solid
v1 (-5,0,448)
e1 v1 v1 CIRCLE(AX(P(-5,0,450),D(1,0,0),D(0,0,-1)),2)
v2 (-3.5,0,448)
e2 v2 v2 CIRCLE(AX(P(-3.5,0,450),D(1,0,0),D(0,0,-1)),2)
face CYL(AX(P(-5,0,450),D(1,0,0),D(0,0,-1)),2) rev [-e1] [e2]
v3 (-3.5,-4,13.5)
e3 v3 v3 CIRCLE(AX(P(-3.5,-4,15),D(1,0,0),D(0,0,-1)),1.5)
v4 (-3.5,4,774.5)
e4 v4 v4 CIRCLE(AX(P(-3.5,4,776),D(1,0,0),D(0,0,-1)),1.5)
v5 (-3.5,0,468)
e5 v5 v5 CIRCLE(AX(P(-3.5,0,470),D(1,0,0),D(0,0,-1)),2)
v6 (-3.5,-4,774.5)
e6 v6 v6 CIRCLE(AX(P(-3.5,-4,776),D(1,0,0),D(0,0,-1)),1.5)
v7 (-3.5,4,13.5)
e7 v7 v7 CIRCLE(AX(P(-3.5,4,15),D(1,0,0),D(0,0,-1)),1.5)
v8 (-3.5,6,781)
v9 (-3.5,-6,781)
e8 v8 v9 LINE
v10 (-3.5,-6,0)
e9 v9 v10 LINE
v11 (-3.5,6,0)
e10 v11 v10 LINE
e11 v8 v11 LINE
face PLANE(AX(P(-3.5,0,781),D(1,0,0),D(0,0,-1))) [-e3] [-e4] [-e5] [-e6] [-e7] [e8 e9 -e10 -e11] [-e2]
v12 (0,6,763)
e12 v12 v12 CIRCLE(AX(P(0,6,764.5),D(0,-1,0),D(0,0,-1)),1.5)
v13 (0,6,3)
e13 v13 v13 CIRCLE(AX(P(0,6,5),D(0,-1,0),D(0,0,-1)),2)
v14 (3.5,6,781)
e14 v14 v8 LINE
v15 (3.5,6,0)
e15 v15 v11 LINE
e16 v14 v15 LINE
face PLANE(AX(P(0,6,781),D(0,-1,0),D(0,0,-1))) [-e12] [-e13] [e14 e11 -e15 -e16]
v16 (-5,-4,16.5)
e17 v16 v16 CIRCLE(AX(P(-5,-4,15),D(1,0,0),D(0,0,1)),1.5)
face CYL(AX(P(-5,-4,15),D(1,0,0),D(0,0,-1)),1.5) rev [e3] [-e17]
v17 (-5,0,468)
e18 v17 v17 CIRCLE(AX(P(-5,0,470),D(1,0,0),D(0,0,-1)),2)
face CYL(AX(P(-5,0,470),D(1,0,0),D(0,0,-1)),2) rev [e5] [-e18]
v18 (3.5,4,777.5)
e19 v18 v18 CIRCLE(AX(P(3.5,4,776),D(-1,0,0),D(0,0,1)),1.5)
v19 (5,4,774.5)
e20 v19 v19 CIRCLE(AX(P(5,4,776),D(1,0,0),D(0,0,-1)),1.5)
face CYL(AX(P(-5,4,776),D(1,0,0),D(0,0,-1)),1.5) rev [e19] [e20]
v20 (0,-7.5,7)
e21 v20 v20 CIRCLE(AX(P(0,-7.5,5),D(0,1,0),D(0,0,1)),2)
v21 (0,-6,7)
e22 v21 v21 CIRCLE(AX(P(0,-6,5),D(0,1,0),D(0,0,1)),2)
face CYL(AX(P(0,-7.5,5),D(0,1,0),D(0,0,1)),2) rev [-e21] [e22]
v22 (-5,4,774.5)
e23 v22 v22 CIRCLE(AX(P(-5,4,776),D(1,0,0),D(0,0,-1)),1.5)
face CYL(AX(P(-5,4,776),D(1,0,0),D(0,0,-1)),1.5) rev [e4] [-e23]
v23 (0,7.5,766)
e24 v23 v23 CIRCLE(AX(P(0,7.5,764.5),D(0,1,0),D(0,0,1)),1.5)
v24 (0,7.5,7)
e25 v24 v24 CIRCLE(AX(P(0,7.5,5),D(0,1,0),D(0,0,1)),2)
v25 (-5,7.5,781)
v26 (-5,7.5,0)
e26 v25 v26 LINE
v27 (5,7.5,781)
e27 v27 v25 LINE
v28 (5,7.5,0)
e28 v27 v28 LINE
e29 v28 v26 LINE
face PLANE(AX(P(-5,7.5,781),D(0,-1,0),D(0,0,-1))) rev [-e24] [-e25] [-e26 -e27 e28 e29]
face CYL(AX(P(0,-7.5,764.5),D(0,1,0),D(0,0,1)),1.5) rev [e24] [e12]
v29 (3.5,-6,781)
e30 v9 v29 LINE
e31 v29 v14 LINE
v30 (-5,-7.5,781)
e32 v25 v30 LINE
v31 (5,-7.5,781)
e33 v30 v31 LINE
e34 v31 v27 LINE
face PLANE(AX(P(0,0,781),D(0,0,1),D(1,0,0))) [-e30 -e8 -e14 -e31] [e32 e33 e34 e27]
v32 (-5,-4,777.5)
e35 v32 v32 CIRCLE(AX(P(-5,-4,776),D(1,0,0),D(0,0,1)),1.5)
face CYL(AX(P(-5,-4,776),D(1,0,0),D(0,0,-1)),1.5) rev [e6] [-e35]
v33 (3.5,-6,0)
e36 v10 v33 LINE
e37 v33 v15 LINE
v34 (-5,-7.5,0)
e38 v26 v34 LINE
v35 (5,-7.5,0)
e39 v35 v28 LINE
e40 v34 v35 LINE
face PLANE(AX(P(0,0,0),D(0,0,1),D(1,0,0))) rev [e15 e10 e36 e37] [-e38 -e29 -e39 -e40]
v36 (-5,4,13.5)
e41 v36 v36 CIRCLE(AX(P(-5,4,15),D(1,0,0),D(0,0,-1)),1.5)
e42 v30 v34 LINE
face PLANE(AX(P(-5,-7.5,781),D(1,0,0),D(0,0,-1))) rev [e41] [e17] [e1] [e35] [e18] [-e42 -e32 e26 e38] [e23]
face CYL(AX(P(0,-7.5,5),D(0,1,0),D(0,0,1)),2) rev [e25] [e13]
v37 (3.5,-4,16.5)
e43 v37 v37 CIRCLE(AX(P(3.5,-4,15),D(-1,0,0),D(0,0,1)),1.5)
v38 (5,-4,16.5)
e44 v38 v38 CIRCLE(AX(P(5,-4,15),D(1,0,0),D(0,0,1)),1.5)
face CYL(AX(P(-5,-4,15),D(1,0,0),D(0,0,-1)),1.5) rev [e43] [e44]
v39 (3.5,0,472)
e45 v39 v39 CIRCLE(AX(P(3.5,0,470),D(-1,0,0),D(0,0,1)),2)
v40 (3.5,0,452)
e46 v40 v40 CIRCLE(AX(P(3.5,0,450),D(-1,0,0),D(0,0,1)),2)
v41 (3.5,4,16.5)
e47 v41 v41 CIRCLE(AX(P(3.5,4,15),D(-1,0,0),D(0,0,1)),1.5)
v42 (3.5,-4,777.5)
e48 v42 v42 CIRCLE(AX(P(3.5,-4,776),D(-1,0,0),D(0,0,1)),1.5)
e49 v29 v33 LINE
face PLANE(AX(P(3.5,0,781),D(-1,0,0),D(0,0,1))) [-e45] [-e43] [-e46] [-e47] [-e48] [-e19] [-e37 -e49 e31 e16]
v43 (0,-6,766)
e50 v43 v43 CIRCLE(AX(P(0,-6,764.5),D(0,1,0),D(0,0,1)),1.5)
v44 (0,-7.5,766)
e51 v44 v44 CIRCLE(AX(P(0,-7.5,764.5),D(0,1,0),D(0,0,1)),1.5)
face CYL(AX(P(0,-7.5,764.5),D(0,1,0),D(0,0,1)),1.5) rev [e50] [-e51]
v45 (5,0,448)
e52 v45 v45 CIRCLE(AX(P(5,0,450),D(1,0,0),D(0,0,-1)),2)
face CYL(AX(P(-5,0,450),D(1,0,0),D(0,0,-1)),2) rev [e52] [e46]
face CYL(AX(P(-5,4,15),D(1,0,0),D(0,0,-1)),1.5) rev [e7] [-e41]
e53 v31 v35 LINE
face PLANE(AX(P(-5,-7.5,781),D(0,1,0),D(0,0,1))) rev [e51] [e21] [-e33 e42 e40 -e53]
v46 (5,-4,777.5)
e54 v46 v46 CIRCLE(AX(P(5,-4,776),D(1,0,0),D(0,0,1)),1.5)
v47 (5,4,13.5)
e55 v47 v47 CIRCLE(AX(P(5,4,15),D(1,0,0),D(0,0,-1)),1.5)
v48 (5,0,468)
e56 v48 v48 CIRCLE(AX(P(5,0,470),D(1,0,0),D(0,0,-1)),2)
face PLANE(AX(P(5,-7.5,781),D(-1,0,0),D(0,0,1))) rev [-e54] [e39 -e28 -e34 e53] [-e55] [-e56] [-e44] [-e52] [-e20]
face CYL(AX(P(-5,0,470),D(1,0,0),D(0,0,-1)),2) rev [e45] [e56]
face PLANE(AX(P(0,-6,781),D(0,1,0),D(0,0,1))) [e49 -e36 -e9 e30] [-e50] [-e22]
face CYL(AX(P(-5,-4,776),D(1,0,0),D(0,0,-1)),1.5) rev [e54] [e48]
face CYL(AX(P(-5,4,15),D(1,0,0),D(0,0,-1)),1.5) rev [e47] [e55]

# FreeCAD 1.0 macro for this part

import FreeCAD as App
import Part
import Sketcher
from FreeCAD import Vector
Q = App.Units.Quantity


def add_polygon(sketch, points):
    """Adds a closed chain of lines whose ends are joined by coincident constraints."""
    first, n = sketch.GeometryCount, len(points)
    for a, b in zip(points, points[1:] + points[:1]):
        sketch.addGeometry(Part.LineSegment(App.Vector(*a, 0), App.Vector(*b, 0)), False)
    for i in range(n):
        sketch.addConstraint(Sketcher.Constraint("Coincident", first + i, 2, first + (i + 1) % n, 1))

doc = App.newDocument("Part")
body = doc.addObject("PartDesign::Body", "Body")

sketch1 = body.newObject("Sketcher::SketchObject", "Sketch")
sketch1.AttachmentSupport = (doc.getObject("XY_Plane"), [""])
sketch1.MapMode = "FlatFace"
add_polygon(sketch1, [(-5, 8), (-5, -8), (5, -8), (5, 8)])
add_polygon(sketch1, [(4, -6), (-4, -6), (-4, 6), (4, 6)])
sketch1.addConstraint([
    Sketcher.Constraint("Vertical", 0),
    Sketcher.Constraint("Horizontal", 1),
    Sketcher.Constraint("Vertical", 2),
    Sketcher.Constraint("Horizontal", 3),
    Sketcher.Constraint("Horizontal", 4),
    Sketcher.Constraint("Vertical", 5),
    Sketcher.Constraint("Horizontal", 6),
    Sketcher.Constraint("Vertical", 7),
    Sketcher.Constraint("Symmetric", 0, 2, 2, 2, -1, 1),
    Sketcher.Constraint("Symmetric", 4, 2, 6, 2, -1, 1),
    Sketcher.Constraint("DistanceX", 1, 1, 1, 2, Q("10 mm")),
    Sketcher.Constraint("DistanceX", 4, 2, 4, 1, Q("7 mm")),
    Sketcher.Constraint("DistanceY", 0, 2, 0, 1, Q("15 mm")),
    Sketcher.Constraint("DistanceY", 5, 1, 5, 2, Q("12 mm")),
])
pad1 = body.newObject("PartDesign::Pad", "Pad")
pad1.Profile = sketch1
pad1.Length = 781

sketch2 = body.newObject("Sketcher::SketchObject", "Sketch001")
sketch2.AttachmentSupport = (doc.getObject("YZ_Plane"), [""])
sketch2.MapMode = "FlatFace"
sketch2.AttachmentOffset = App.Placement(Vector(0, 0, 5), App.Rotation())
sketch2.addGeometry([
    Part.Circle(Vector(0, 470, 0), Vector(0, 0, 1), 2),
    Part.Circle(Vector(0, 450, 0), Vector(0, 0, 1), 2),
    Part.Circle(Vector(4, 15, 0), Vector(0, 0, 1), 1.5),
    Part.Circle(Vector(-4, 15, 0), Vector(0, 0, 1), 1.5),
    Part.Circle(Vector(4, 776, 0), Vector(0, 0, 1), 1.5),
    Part.Circle(Vector(-4, 776, 0), Vector(0, 0, 1), 1.5),
], False)
sketch2.addConstraint([
    Sketcher.Constraint("Equal", 0, 1),
    Sketcher.Constraint("Equal", 2, 3),
    Sketcher.Constraint("Equal", 3, 4),
    Sketcher.Constraint("Equal", 4, 5),
    Sketcher.Constraint("Symmetric", 2, 3, 3, 3, -2),
    Sketcher.Constraint("Symmetric", 4, 3, 5, 3, -2),
    Sketcher.Constraint("PointOnObject", 0, 3, -2),
    Sketcher.Constraint("PointOnObject", 1, 3, -2),
    Sketcher.Constraint("Vertical", 2, 3, 4, 3),
    Sketcher.Constraint("Diameter", 0, Q("4 mm")),
    Sketcher.Constraint("Diameter", 2, Q("3 mm")),
    Sketcher.Constraint("DistanceY", -1, 1, 0, 3, Q("470 mm")),
    Sketcher.Constraint("DistanceY", -1, 1, 1, 3, Q("450 mm")),
    Sketcher.Constraint("DistanceX", -1, 1, 2, 3, Q("4 mm")),
    Sketcher.Constraint("DistanceY", -1, 1, 2, 3, Q("15 mm")),
    Sketcher.Constraint("DistanceY", -1, 1, 4, 3, Q("776 mm")),
])
pocket1 = body.newObject("PartDesign::Pocket", "Pocket")
pocket1.Profile = sketch2
pocket1.Type = "ThroughAll"

sketch3 = body.newObject("Sketcher::SketchObject", "Sketch002")
sketch3.AttachmentSupport = (doc.getObject("XZ_Plane"), [""])
sketch3.MapMode = "FlatFace"
sketch3.AttachmentOffset = App.Placement(Vector(0, 0, -7.5), App.Rotation())
sketch3.addGeometry([
    Part.Circle(Vector(0, 5, 0), Vector(0, 0, 1), 2),
    Part.Circle(Vector(0, 764.5, 0), Vector(0, 0, 1), 1.5),
], False)
sketch3.addConstraint([
    Sketcher.Constraint("PointOnObject", 0, 3, -2),
    Sketcher.Constraint("PointOnObject", 1, 3, -2),
    Sketcher.Constraint("Diameter", 0, Q("4 mm")),
    Sketcher.Constraint("Diameter", 1, Q("3 mm")),
    Sketcher.Constraint("DistanceY", -1, 1, 0, 3, Q("5 mm")),
    Sketcher.Constraint("DistanceY", -1, 1, 1, 3, Q("764.5 mm")),
])
pocket2 = body.newObject("PartDesign::Pocket", "Pocket001")
pocket2.Profile = sketch3
pocket2.Type = "ThroughAll"
pocket2.Reversed = True

doc.recompute()
